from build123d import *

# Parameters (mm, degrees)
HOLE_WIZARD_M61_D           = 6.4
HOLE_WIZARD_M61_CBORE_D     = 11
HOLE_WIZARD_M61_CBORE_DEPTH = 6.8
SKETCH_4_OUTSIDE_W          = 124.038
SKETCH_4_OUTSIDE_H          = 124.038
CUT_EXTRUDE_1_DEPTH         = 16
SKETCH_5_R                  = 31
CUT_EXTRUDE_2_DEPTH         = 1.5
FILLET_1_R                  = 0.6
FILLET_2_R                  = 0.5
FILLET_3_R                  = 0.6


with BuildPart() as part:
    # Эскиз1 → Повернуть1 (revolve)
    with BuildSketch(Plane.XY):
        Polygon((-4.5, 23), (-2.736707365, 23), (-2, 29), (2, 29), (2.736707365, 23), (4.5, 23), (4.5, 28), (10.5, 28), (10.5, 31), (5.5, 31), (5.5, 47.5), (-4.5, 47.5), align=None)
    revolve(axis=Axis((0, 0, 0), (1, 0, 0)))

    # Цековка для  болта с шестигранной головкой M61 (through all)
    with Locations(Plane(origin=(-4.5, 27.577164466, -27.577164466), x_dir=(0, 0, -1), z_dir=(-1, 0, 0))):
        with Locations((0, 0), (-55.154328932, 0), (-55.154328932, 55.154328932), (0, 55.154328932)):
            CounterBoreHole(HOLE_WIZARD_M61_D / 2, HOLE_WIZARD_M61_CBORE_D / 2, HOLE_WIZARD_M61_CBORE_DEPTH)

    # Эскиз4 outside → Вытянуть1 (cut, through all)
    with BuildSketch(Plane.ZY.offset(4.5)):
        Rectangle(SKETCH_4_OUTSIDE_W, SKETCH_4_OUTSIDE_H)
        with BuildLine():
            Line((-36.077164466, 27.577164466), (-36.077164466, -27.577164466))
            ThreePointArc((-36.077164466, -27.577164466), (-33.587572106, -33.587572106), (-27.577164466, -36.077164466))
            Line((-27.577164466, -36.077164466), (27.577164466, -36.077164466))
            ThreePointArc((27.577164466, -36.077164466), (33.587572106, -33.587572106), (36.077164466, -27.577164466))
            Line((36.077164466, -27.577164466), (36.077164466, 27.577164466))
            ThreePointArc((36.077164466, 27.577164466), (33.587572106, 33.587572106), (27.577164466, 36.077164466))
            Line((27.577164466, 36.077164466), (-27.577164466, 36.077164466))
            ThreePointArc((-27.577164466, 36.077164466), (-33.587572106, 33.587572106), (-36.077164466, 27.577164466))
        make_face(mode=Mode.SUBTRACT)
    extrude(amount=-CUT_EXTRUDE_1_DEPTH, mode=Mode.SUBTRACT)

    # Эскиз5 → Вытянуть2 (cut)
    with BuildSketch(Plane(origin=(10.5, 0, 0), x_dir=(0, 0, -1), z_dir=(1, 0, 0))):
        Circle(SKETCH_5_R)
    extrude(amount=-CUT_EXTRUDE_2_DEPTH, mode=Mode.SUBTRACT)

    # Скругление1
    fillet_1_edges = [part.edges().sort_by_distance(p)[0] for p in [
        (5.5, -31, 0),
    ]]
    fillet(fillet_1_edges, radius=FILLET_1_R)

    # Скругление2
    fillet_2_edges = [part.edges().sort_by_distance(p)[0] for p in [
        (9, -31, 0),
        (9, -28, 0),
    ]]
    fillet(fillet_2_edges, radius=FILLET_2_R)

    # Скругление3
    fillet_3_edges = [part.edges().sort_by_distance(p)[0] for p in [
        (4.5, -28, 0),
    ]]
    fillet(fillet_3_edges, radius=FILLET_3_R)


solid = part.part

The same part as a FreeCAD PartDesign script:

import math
import FreeCAD as App
import Part
import Sketcher
Q = App.Units.Quantity


def edges_at(feature, points):
    """Names of the edges that pass closest to the given points."""
    edges = feature.Shape.Edges
    near = lambda p: min(range(len(edges)), key=lambda i: edges[i].distToShape(Part.Vertex(*p))[0])
    return sorted({f"Edge{near(p) + 1}" for p in points})

doc = App.newDocument("Part")
body = doc.addObject("PartDesign::Body", "Body")

sketch1 = body.newObject("Sketcher::SketchObject", "Sketch")
sketch1.AttachmentSupport = (doc.getObject("XY_Plane"), [""])
sketch1.MapMode = "FlatFace"
sketch1.addGeometry([
    Part.LineSegment(App.Vector(-4.5, 23, 0), App.Vector(-2.736707, 23, 0)),
    Part.LineSegment(App.Vector(-2.736707, 23, 0), App.Vector(-2, 29, 0)),
    Part.LineSegment(App.Vector(-2, 29, 0), App.Vector(2, 29, 0)),
    Part.LineSegment(App.Vector(2, 29, 0), App.Vector(2.736707, 23, 0)),
    Part.LineSegment(App.Vector(2.736707, 23, 0), App.Vector(4.5, 23, 0)),
    Part.LineSegment(App.Vector(4.5, 23, 0), App.Vector(4.5, 28, 0)),
    Part.LineSegment(App.Vector(4.5, 28, 0), App.Vector(10.5, 28, 0)),
    Part.LineSegment(App.Vector(10.5, 28, 0), App.Vector(10.5, 31, 0)),
    Part.LineSegment(App.Vector(10.5, 31, 0), App.Vector(5.5, 31, 0)),
    Part.LineSegment(App.Vector(5.5, 31, 0), App.Vector(5.5, 47.5, 0)),
    Part.LineSegment(App.Vector(5.5, 47.5, 0), App.Vector(-4.5, 47.5, 0)),
    Part.LineSegment(App.Vector(-4.5, 47.5, 0), App.Vector(-4.5, 23, 0)),
], False)
sketch1.addConstraint([
    Sketcher.Constraint("Coincident", 0, 2, 1, 1),
    Sketcher.Constraint("Coincident", 1, 2, 2, 1),
    Sketcher.Constraint("Coincident", 2, 2, 3, 1),
    Sketcher.Constraint("Coincident", 3, 2, 4, 1),
    Sketcher.Constraint("Coincident", 4, 2, 5, 1),
    Sketcher.Constraint("Coincident", 5, 2, 6, 1),
    Sketcher.Constraint("Coincident", 6, 2, 7, 1),
    Sketcher.Constraint("Coincident", 7, 2, 8, 1),
    Sketcher.Constraint("Coincident", 8, 2, 9, 1),
    Sketcher.Constraint("Coincident", 9, 2, 10, 1),
    Sketcher.Constraint("Coincident", 10, 2, 11, 1),
    Sketcher.Constraint("Coincident", 11, 2, 0, 1),
    Sketcher.Constraint("Horizontal", 0),
    Sketcher.Constraint("Horizontal", 2),
    Sketcher.Constraint("Horizontal", 4),
    Sketcher.Constraint("Vertical", 5),
    Sketcher.Constraint("Horizontal", 6),
    Sketcher.Constraint("Vertical", 7),
    Sketcher.Constraint("Horizontal", 8),
    Sketcher.Constraint("Vertical", 9),
    Sketcher.Constraint("Horizontal", 10),
    Sketcher.Constraint("Vertical", 11),
    Sketcher.Constraint("Symmetric", 0, 2, 3, 2, -2),
    Sketcher.Constraint("Equal", 0, 4),
    Sketcher.Constraint("Equal", 8, 5),
    Sketcher.Constraint("Equal", 1, 3),
    Sketcher.Constraint("DistanceX", 2, 1, 2, 2, 4.0),
    Sketcher.Constraint("DistanceX", 6, 1, 6, 2, 6.0),
    Sketcher.Constraint("DistanceX", 8, 2, 8, 1, 5.0),
    Sketcher.Constraint("DistanceX", 10, 2, 10, 1, 10.0),
    Sketcher.Constraint("DistanceY", 7, 1, 7, 2, 3.0),
    Sketcher.Constraint("Angle", 1, Q("83 deg")),
    Sketcher.Constraint("DistanceY", 9, 1, 9, 2, 16.5),
    Sketcher.Constraint("DistanceY", -1, 1, 0, 2, 23.0),
    Sketcher.Constraint("DistanceY", -1, 1, 1, 2, 29.0),
])
revolution = body.newObject("PartDesign::Revolution", "Revolution")
revolution.Profile = sketch1
revolution.ReferenceAxis = (sketch1, ["H_Axis"])
revolution.Angle = 360

sketch2 = body.newObject("Sketcher::SketchObject", "Sketch001")
sketch2.AttachmentSupport = (doc.getObject("YZ_Plane"), [""])
sketch2.MapMode = "FlatFace"
sketch2.AttachmentOffset = App.Placement(App.Vector(0, 0, -4.5), App.Rotation())
sketch2.addGeometry([
    Part.Circle(App.Vector(27.577164, -27.577164, 0), App.Vector(0, 0, 1), 3.2),
    Part.Circle(App.Vector(27.577164, 27.577164, 0), App.Vector(0, 0, 1), 3.2),
    Part.Circle(App.Vector(-27.577164, 27.577164, 0), App.Vector(0, 0, 1), 3.2),
    Part.Circle(App.Vector(-27.577164, -27.577164, 0), App.Vector(0, 0, 1), 3.2),
], False)
sketch2.addConstraint([
    Sketcher.Constraint("Equal", 0, 1),
    Sketcher.Constraint("Equal", 1, 2),
    Sketcher.Constraint("Equal", 2, 3),
    Sketcher.Constraint("Symmetric", 0, 3, 2, 3, -1, 1),
    Sketcher.Constraint("Symmetric", 1, 3, 3, 3, -1, 1),
    Sketcher.Constraint("Symmetric", 1, 3, 2, 3, -2),
    Sketcher.Constraint("Diameter", 0, 6.4),
    Sketcher.Constraint("DistanceY", 0, 3, 1, 3, 55.154329),
    Sketcher.Constraint("DistanceX", 2, 3, 1, 3, 55.154329),
])
doc.recompute()
hole = body.newObject("PartDesign::Hole", "Hole")
hole.Profile = sketch2
hole.ThreadType = "None"
hole.Diameter = 6.4
hole.DepthType = "ThroughAll"
hole.HoleCutType = "Counterbore"
hole.HoleCutDiameter = 11
hole.HoleCutDepth = 6.8
hole.Reversed = True

sketch3 = body.newObject("Sketcher::SketchObject", "Sketch002")
sketch3.AttachmentSupport = (doc.getObject("YZ_Plane"), [""])
sketch3.MapMode = "FlatFace"
sketch3.AttachmentOffset = App.Placement(App.Vector(0, 0, -4.5), App.Rotation())
sketch3.addGeometry([
    Part.LineSegment(App.Vector(62.019, -62.019, 0), App.Vector(-62.019, -62.019, 0)),
    Part.LineSegment(App.Vector(-62.019, -62.019, 0), App.Vector(-62.019, 62.019, 0)),
    Part.LineSegment(App.Vector(-62.019, 62.019, 0), App.Vector(62.019, 62.019, 0)),
    Part.LineSegment(App.Vector(62.019, 62.019, 0), App.Vector(62.019, -62.019, 0)),
    Part.LineSegment(App.Vector(-27.577164, -36.077164, 0), App.Vector(27.577164, -36.077164, 0)),
    Part.ArcOfCircle(Part.Circle(App.Vector(27.577164, -27.577164, 0), App.Vector(0, 0, 1), 8.5), math.radians(-90), math.radians(0)),
    Part.LineSegment(App.Vector(36.077164, -27.577164, 0), App.Vector(36.077164, 27.577164, 0)),
    Part.ArcOfCircle(Part.Circle(App.Vector(27.577164, 27.577164, 0), App.Vector(0, 0, 1), 8.5), math.radians(0), math.radians(90)),
    Part.LineSegment(App.Vector(27.577164, 36.077164, 0), App.Vector(-27.577164, 36.077164, 0)),
    Part.ArcOfCircle(Part.Circle(App.Vector(-27.577164, 27.577164, 0), App.Vector(0, 0, 1), 8.5), math.radians(90), math.radians(180)),
    Part.LineSegment(App.Vector(-36.077164, 27.577164, 0), App.Vector(-36.077164, -27.577164, 0)),
    Part.ArcOfCircle(Part.Circle(App.Vector(-27.577164, -27.577164, 0), App.Vector(0, 0, 1), 8.5), math.radians(180), math.radians(270)),
], False)
sketch3.addConstraint([
    Sketcher.Constraint("Coincident", 0, 2, 1, 1),
    Sketcher.Constraint("Coincident", 1, 2, 2, 1),
    Sketcher.Constraint("Coincident", 2, 2, 3, 1),
    Sketcher.Constraint("Coincident", 3, 2, 0, 1),
    Sketcher.Constraint("Tangent", 4, 2, 5, 1),
    Sketcher.Constraint("Tangent", 5, 2, 6, 1),
    Sketcher.Constraint("Tangent", 6, 2, 7, 1),
    Sketcher.Constraint("Tangent", 7, 2, 8, 1),
    Sketcher.Constraint("Tangent", 8, 2, 9, 1),
    Sketcher.Constraint("Tangent", 9, 2, 10, 1),
    Sketcher.Constraint("Tangent", 10, 2, 11, 1),
    Sketcher.Constraint("Tangent", 11, 2, 4, 1),
    Sketcher.Constraint("Horizontal", 0),
    Sketcher.Constraint("Vertical", 1),
    Sketcher.Constraint("Horizontal", 2),
    Sketcher.Constraint("Vertical", 3),
    Sketcher.Constraint("Horizontal", 4),
    Sketcher.Constraint("Vertical", 6),
    Sketcher.Constraint("Horizontal", 8),
    Sketcher.Constraint("Vertical", 10),
    Sketcher.Constraint("Equal", 5, 7),
    Sketcher.Constraint("Equal", 7, 9),
    Sketcher.Constraint("Equal", 9, 11),
    Sketcher.Constraint("Symmetric", 5, 3, 9, 3, -1, 1),
    Sketcher.Constraint("Symmetric", 0, 2, 2, 2, -1, 1),
    Sketcher.Constraint("Equal", 2, 1),
    Sketcher.Constraint("Equal", 8, 6),
    Sketcher.Constraint("Radius", 5, 8.5),
    Sketcher.Constraint("DistanceX", 0, 2, 0, 1, 124.038),
    Sketcher.Constraint("DistanceX", 4, 1, 4, 2, 55.154329),
])
pocket1 = body.newObject("PartDesign::Pocket", "Pocket")
pocket1.Profile = sketch3
pocket1.Type = "ThroughAll"
pocket1.Reversed = True

sketch4 = body.newObject("Sketcher::SketchObject", "Sketch003")
sketch4.AttachmentSupport = (doc.getObject("YZ_Plane"), [""])
sketch4.MapMode = "FlatFace"
sketch4.AttachmentOffset = App.Placement(App.Vector(0, 0, 10.5), App.Rotation())
sketch4.addGeometry(Part.Circle(App.Vector(0, 0, 0), App.Vector(0, 0, 1), 31), False)
sketch4.addConstraint([
    Sketcher.Constraint("Coincident", 0, 3, -1, 1),
    Sketcher.Constraint("Diameter", 0, 62.0),
])
pocket2 = body.newObject("PartDesign::Pocket", "Pocket001")
pocket2.Profile = sketch4
pocket2.Length = 1.5
doc.recompute()

fillet = body.newObject("PartDesign::Fillet", "Fillet")
fillet.Base = (pocket2, edges_at(pocket2, [(5.5, -31, 0)]))
fillet.Radius = 0.6
doc.recompute()

fillet2 = body.newObject("PartDesign::Fillet", "Fillet001")
fillet2.Base = (fillet, edges_at(fillet, [(9, -31, 0), (9, -28, 0)]))
fillet2.Radius = 0.5
doc.recompute()

fillet3 = body.newObject("PartDesign::Fillet", "Fillet002")
fillet3.Base = (fillet2, edges_at(fillet2, [(4.5, -28, 0)]))
fillet3.Radius = 0.6

doc.recompute()
